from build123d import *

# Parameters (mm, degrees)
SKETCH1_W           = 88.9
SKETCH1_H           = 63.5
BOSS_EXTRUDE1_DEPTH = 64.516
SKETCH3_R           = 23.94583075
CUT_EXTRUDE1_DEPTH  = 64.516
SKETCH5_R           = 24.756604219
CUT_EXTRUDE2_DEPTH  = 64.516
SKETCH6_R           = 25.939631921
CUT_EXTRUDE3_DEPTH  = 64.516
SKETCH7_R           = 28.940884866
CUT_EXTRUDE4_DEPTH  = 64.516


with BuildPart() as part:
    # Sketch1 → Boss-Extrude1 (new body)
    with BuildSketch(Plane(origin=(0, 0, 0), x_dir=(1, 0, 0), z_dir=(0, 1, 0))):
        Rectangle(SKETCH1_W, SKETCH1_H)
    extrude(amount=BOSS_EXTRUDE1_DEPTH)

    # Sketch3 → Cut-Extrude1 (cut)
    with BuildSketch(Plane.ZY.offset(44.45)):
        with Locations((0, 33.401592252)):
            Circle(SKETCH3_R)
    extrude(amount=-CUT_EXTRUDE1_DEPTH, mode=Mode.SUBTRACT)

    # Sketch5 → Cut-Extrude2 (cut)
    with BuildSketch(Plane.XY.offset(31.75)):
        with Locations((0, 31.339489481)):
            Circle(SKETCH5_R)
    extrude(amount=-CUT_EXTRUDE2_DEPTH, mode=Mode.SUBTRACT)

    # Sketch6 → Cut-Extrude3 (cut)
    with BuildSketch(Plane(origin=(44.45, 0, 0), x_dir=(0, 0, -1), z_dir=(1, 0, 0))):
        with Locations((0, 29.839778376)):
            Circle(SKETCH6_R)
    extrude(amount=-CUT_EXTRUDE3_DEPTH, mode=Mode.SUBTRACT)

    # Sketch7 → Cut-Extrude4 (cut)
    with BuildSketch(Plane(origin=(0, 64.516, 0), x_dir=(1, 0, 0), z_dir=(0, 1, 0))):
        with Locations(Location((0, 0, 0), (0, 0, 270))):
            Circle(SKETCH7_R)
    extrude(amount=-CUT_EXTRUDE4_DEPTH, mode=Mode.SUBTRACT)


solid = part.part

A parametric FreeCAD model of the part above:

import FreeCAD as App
import Part
import Sketcher

V = App.Vector
Q = App.Units.Quantity


def add_polygon(sketch, points):
    """Adds a closed chain of lines whose ends are joined by coincident constraints."""
    first, n = sketch.GeometryCount, len(points)
    for a, b in zip(points, points[1:] + points[:1]):
        sketch.addGeometry(Part.LineSegment(App.Vector(*a, 0), App.Vector(*b, 0)), False)
    for i in range(n):
        sketch.addConstraint(Sketcher.Constraint("Coincident", first + i, 2, first + (i + 1) % n, 1))

doc = App.newDocument("Part")
body = doc.addObject("PartDesign::Body", "Body")

# Sketch on XZ plane
sketch1 = body.newObject("Sketcher::SketchObject", "Sketch")
sketch1.AttachmentSupport = (doc.getObject("XZ_Plane"), [""])
sketch1.MapMode = "FlatFace"
add_polygon(sketch1, [(-44, -32), (-44, 32), (44, 32), (44, -32)])  # lines 0-3
sketch1.addConstraint([
    Sketcher.Constraint("Vertical", 0),
    Sketcher.Constraint("Horizontal", 1),
    Sketcher.Constraint("Vertical", 2),
    Sketcher.Constraint("Horizontal", 3),
    Sketcher.Constraint("Symmetric", 0, 2, 2, 2, -1, 1),
    Sketcher.Constraint("DistanceX", 1, 1, 1, 2, Q("3.5 in")),
    Sketcher.Constraint("DistanceY", 0, 1, 0, 2, Q("2.5 in")),
])
pad1 = body.newObject("PartDesign::Pad", "Pad")
pad1.Profile = sketch1
pad1.Length = Q("2.54 in")
pad1.Reversed = True

# Sketch on YZ plane
sketch2 = body.newObject("Sketcher::SketchObject", "Sketch001")
sketch2.AttachmentSupport = (doc.getObject("YZ_Plane"), [""])
sketch2.MapMode = "FlatFace"
sketch2.AttachmentOffset = App.Placement(V(0, 0, -1.75 * 25.4), App.Rotation())
sketch2.addGeometry(Part.Circle(V(33, 0, 0), V(0, 0, 1), 24), False)
sketch2.addConstraint([
    Sketcher.Constraint("PointOnObject", 0, 3, -1),
    Sketcher.Constraint("Diameter", 0, 47.891661),
    Sketcher.Constraint("DistanceX", -1, 1, 0, 3, 33.401592),
])
pocket1 = body.newObject("PartDesign::Pocket", "Pocket")
pocket1.Profile = sketch2
pocket1.Length = Q("2.54 in")
pocket1.Reversed = True

# Sketch on XY plane
sketch3 = body.newObject("Sketcher::SketchObject", "Sketch002")
sketch3.AttachmentSupport = (doc.getObject("XY_Plane"), [""])
sketch3.MapMode = "FlatFace"
sketch3.AttachmentOffset = App.Placement(V(0, 0, 1.25 * 25.4), App.Rotation())
sketch3.addGeometry(Part.Circle(V(0, 31, 0), V(0, 0, 1), 25), False)
sketch3.addConstraint([
    Sketcher.Constraint("PointOnObject", 0, 3, -2),
    Sketcher.Constraint("Diameter", 0, 49.513208),
    Sketcher.Constraint("DistanceY", -1, 1, 0, 3, 31.339489),
])
pocket2 = body.newObject("PartDesign::Pocket", "Pocket001")
pocket2.Profile = sketch3
pocket2.Length = Q("2.54 in")

# Sketch on YZ plane
sketch4 = body.newObject("Sketcher::SketchObject", "Sketch003")
sketch4.AttachmentSupport = (doc.getObject("YZ_Plane"), [""])
sketch4.MapMode = "FlatFace"
sketch4.AttachmentOffset = App.Placement(V(0, 0, 1.75 * 25.4), App.Rotation())
sketch4.addGeometry(Part.Circle(V(30, 0, 0), V(0, 0, 1), 26), False)
sketch4.addConstraint([
    Sketcher.Constraint("PointOnObject", 0, 3, -1),
    Sketcher.Constraint("Diameter", 0, 51.879264),
    Sketcher.Constraint("DistanceX", -1, 1, 0, 3, 29.839778),
])
pocket3 = body.newObject("PartDesign::Pocket", "Pocket002")
pocket3.Profile = sketch4
pocket3.Length = Q("2.54 in")

# Sketch on XZ plane
sketch5 = body.newObject("Sketcher::SketchObject", "Sketch004")
sketch5.AttachmentSupport = (doc.getObject("XZ_Plane"), [""])
sketch5.MapMode = "FlatFace"
sketch5.AttachmentOffset = App.Placement(V(0, 0, -2.54 * 25.4), App.Rotation())
sketch5.addGeometry(Part.Circle(V(0, 0, 0), V(0, 0, 1), 29), False)
sketch5.addConstraint([
    Sketcher.Constraint("Coincident", 0, 3, -1, 1),
    Sketcher.Constraint("Diameter", 0, 57.88177),
])
pocket4 = body.newObject("PartDesign::Pocket", "Pocket003")
pocket4.Profile = sketch5
pocket4.Length = Q("2.54 in")
pocket4.Reversed = True

doc.recompute()
